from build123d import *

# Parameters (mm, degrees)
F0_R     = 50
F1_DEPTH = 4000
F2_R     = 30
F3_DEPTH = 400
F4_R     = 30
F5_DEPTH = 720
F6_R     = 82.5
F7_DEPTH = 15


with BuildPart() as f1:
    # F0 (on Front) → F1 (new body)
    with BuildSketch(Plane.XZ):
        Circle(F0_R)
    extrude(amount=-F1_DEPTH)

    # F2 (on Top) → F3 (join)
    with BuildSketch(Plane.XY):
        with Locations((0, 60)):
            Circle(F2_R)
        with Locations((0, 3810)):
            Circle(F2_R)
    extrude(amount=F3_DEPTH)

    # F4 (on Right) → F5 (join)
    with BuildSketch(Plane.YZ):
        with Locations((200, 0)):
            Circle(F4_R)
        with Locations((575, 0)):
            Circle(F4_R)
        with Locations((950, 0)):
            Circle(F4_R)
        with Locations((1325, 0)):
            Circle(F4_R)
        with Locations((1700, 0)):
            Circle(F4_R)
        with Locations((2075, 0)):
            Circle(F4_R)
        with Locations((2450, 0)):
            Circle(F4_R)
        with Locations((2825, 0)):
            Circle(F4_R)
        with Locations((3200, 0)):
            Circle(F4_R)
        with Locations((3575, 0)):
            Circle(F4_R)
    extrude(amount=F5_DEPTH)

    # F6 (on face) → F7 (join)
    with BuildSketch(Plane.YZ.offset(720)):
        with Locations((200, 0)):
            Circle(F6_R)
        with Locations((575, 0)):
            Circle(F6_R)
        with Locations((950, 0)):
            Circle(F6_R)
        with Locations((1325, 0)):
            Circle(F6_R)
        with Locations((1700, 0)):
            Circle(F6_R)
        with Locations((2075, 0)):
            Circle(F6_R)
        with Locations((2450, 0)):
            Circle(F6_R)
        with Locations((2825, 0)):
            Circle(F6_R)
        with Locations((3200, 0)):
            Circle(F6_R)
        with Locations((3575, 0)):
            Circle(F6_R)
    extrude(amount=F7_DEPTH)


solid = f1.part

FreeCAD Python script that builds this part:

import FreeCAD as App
import Part
import Sketcher

V = App.Vector

doc = App.newDocument("Part")
body = doc.addObject("PartDesign::Body", "Body")

sketch1 = body.newObject("Sketcher::SketchObject", "Sketch")
sketch1.AttachmentSupport = (doc.getObject("XZ_Plane"), [""])
sketch1.MapMode = "FlatFace"
sketch1.addGeometry(Part.Circle(V(0, 0, 0), V(0, 0, 1), 50), False)
sketch1.addConstraint([
    Sketcher.Constraint("Coincident", 0, 3, -1, 1),
    Sketcher.Constraint("Diameter", 0, 100.0),
])
pad1 = body.newObject("PartDesign::Pad", "Pad")
pad1.Profile = sketch1
pad1.Length = 4000
pad1.Reversed = True

sketch2 = body.newObject("Sketcher::SketchObject", "Sketch001")
sketch2.AttachmentSupport = (doc.getObject("XY_Plane"), [""])
sketch2.MapMode = "FlatFace"
sketch2.addGeometry([
    Part.Circle(V(0, 60, 0), V(0, 0, 1), 30),
    Part.Circle(V(0, 3810, 0), V(0, 0, 1), 30),
], False)
sketch2.addConstraint([
    Sketcher.Constraint("Equal", 0, 1),
    Sketcher.Constraint("PointOnObject", 0, 3, -2),
    Sketcher.Constraint("PointOnObject", 1, 3, -2),
    Sketcher.Constraint("Diameter", 0, 60.0),
    Sketcher.Constraint("DistanceY", -1, 1, 0, 3, 60.0),
    Sketcher.Constraint("DistanceY", -1, 1, 1, 3, 3810.0),
])
pad2 = body.newObject("PartDesign::Pad", "Pad001")
pad2.Profile = sketch2
pad2.Length = 400

sketch3 = body.newObject("Sketcher::SketchObject", "Sketch002")
sketch3.AttachmentSupport = (doc.getObject("YZ_Plane"), [""])
sketch3.MapMode = "FlatFace"
sketch3.addGeometry([
    Part.Circle(V(200, 0, 0), V(0, 0, 1), 30),
    Part.Circle(V(575, 0, 0), V(0, 0, 1), 30),
    Part.Circle(V(950, 0, 0), V(0, 0, 1), 30),
    Part.Circle(V(1325, 0, 0), V(0, 0, 1), 30),
    Part.Circle(V(1700, 0, 0), V(0, 0, 1), 30),
    Part.Circle(V(2075, 0, 0), V(0, 0, 1), 30),
    Part.Circle(V(2450, 0, 0), V(0, 0, 1), 30),
    Part.Circle(V(2825, 0, 0), V(0, 0, 1), 30),
    Part.Circle(V(3200, 0, 0), V(0, 0, 1), 30),
    Part.Circle(V(3575, 0, 0), V(0, 0, 1), 30),
], False)
sketch3.addConstraint([
    Sketcher.Constraint("Equal", 0, 1),
    Sketcher.Constraint("Equal", 1, 2),
    Sketcher.Constraint("Equal", 2, 3),
    Sketcher.Constraint("Equal", 3, 4),
    Sketcher.Constraint("Equal", 4, 5),
    Sketcher.Constraint("Equal", 5, 6),
    Sketcher.Constraint("Equal", 6, 7),
    Sketcher.Constraint("Equal", 7, 8),
    Sketcher.Constraint("Equal", 8, 9),
    Sketcher.Constraint("PointOnObject", 0, 3, -1),
    Sketcher.Constraint("PointOnObject", 1, 3, -1),
    Sketcher.Constraint("PointOnObject", 2, 3, -1),
    Sketcher.Constraint("PointOnObject", 3, 3, -1),
    Sketcher.Constraint("PointOnObject", 4, 3, -1),
    Sketcher.Constraint("PointOnObject", 5, 3, -1),
    Sketcher.Constraint("PointOnObject", 6, 3, -1),
    Sketcher.Constraint("PointOnObject", 7, 3, -1),
    Sketcher.Constraint("PointOnObject", 8, 3, -1),
    Sketcher.Constraint("PointOnObject", 9, 3, -1),
    Sketcher.Constraint("Diameter", 0, 60.0),
    Sketcher.Constraint("DistanceX", -1, 1, 0, 3, 200.0),
    Sketcher.Constraint("DistanceX", -1, 1, 1, 3, 575.0),
    Sketcher.Constraint("DistanceX", -1, 1, 2, 3, 950.0),
    Sketcher.Constraint("DistanceX", -1, 1, 3, 3, 1325.0),
    Sketcher.Constraint("DistanceX", -1, 1, 4, 3, 1700.0),
    Sketcher.Constraint("DistanceX", -1, 1, 5, 3, 2075.0),
    Sketcher.Constraint("DistanceX", -1, 1, 6, 3, 2450.0),
    Sketcher.Constraint("DistanceX", -1, 1, 7, 3, 2825.0),
    Sketcher.Constraint("DistanceX", -1, 1, 8, 3, 3200.0),
    Sketcher.Constraint("DistanceX", -1, 1, 9, 3, 3575.0),
])
pad3 = body.newObject("PartDesign::Pad", "Pad002")
pad3.Profile = sketch3
pad3.Length = 720

sketch4 = body.newObject("Sketcher::SketchObject", "Sketch003")
sketch4.AttachmentSupport = (doc.getObject("YZ_Plane"), [""])
sketch4.MapMode = "FlatFace"
sketch4.AttachmentOffset = App.Placement(V(0, 0, 720), App.Rotation())
sketch4.addGeometry([
    Part.Circle(V(200, 0, 0), V(0, 0, 1), 82),
    Part.Circle(V(575, 0, 0), V(0, 0, 1), 82),
    Part.Circle(V(950, 0, 0), V(0, 0, 1), 82),
    Part.Circle(V(1325, 0, 0), V(0, 0, 1), 82),
    Part.Circle(V(1700, 0, 0), V(0, 0, 1), 82),
    Part.Circle(V(2075, 0, 0), V(0, 0, 1), 82),
    Part.Circle(V(2450, 0, 0), V(0, 0, 1), 82),
    Part.Circle(V(2825, 0, 0), V(0, 0, 1), 82),
    Part.Circle(V(3200, 0, 0), V(0, 0, 1), 82),
    Part.Circle(V(3575, 0, 0), V(0, 0, 1), 82),
], False)
sketch4.addConstraint([
    Sketcher.Constraint("Equal", 0, 1),
    Sketcher.Constraint("Equal", 1, 2),
    Sketcher.Constraint("Equal", 2, 3),
    Sketcher.Constraint("Equal", 3, 4),
    Sketcher.Constraint("Equal", 4, 5),
    Sketcher.Constraint("Equal", 5, 6),
    Sketcher.Constraint("Equal", 6, 7),
    Sketcher.Constraint("Equal", 7, 8),
    Sketcher.Constraint("Equal", 8, 9),
    Sketcher.Constraint("PointOnObject", 0, 3, -1),
    Sketcher.Constraint("PointOnObject", 1, 3, -1),
    Sketcher.Constraint("PointOnObject", 2, 3, -1),
    Sketcher.Constraint("PointOnObject", 3, 3, -1),
    Sketcher.Constraint("PointOnObject", 4, 3, -1),
    Sketcher.Constraint("PointOnObject", 5, 3, -1),
    Sketcher.Constraint("PointOnObject", 6, 3, -1),
    Sketcher.Constraint("PointOnObject", 7, 3, -1),
    Sketcher.Constraint("PointOnObject", 8, 3, -1),
    Sketcher.Constraint("PointOnObject", 9, 3, -1),
    Sketcher.Constraint("Diameter", 0, 165.0),
    Sketcher.Constraint("DistanceX", -1, 1, 0, 3, 200.0),
    Sketcher.Constraint("DistanceX", -1, 1, 1, 3, 575.0),
    Sketcher.Constraint("DistanceX", -1, 1, 2, 3, 950.0),
    Sketcher.Constraint("DistanceX", -1, 1, 3, 3, 1325.0),
    Sketcher.Constraint("DistanceX", -1, 1, 4, 3, 1700.0),
    Sketcher.Constraint("DistanceX", -1, 1, 5, 3, 2075.0),
    Sketcher.Constraint("DistanceX", -1, 1, 6, 3, 2450.0),
    Sketcher.Constraint("DistanceX", -1, 1, 7, 3, 2825.0),
    Sketcher.Constraint("DistanceX", -1, 1, 8, 3, 3200.0),
    Sketcher.Constraint("DistanceX", -1, 1, 9, 3, 3575.0),
])
pad4 = body.newObject("PartDesign::Pad", "Pad003")
pad4.Profile = sketch4
pad4.Length = 15

doc.recompute()
